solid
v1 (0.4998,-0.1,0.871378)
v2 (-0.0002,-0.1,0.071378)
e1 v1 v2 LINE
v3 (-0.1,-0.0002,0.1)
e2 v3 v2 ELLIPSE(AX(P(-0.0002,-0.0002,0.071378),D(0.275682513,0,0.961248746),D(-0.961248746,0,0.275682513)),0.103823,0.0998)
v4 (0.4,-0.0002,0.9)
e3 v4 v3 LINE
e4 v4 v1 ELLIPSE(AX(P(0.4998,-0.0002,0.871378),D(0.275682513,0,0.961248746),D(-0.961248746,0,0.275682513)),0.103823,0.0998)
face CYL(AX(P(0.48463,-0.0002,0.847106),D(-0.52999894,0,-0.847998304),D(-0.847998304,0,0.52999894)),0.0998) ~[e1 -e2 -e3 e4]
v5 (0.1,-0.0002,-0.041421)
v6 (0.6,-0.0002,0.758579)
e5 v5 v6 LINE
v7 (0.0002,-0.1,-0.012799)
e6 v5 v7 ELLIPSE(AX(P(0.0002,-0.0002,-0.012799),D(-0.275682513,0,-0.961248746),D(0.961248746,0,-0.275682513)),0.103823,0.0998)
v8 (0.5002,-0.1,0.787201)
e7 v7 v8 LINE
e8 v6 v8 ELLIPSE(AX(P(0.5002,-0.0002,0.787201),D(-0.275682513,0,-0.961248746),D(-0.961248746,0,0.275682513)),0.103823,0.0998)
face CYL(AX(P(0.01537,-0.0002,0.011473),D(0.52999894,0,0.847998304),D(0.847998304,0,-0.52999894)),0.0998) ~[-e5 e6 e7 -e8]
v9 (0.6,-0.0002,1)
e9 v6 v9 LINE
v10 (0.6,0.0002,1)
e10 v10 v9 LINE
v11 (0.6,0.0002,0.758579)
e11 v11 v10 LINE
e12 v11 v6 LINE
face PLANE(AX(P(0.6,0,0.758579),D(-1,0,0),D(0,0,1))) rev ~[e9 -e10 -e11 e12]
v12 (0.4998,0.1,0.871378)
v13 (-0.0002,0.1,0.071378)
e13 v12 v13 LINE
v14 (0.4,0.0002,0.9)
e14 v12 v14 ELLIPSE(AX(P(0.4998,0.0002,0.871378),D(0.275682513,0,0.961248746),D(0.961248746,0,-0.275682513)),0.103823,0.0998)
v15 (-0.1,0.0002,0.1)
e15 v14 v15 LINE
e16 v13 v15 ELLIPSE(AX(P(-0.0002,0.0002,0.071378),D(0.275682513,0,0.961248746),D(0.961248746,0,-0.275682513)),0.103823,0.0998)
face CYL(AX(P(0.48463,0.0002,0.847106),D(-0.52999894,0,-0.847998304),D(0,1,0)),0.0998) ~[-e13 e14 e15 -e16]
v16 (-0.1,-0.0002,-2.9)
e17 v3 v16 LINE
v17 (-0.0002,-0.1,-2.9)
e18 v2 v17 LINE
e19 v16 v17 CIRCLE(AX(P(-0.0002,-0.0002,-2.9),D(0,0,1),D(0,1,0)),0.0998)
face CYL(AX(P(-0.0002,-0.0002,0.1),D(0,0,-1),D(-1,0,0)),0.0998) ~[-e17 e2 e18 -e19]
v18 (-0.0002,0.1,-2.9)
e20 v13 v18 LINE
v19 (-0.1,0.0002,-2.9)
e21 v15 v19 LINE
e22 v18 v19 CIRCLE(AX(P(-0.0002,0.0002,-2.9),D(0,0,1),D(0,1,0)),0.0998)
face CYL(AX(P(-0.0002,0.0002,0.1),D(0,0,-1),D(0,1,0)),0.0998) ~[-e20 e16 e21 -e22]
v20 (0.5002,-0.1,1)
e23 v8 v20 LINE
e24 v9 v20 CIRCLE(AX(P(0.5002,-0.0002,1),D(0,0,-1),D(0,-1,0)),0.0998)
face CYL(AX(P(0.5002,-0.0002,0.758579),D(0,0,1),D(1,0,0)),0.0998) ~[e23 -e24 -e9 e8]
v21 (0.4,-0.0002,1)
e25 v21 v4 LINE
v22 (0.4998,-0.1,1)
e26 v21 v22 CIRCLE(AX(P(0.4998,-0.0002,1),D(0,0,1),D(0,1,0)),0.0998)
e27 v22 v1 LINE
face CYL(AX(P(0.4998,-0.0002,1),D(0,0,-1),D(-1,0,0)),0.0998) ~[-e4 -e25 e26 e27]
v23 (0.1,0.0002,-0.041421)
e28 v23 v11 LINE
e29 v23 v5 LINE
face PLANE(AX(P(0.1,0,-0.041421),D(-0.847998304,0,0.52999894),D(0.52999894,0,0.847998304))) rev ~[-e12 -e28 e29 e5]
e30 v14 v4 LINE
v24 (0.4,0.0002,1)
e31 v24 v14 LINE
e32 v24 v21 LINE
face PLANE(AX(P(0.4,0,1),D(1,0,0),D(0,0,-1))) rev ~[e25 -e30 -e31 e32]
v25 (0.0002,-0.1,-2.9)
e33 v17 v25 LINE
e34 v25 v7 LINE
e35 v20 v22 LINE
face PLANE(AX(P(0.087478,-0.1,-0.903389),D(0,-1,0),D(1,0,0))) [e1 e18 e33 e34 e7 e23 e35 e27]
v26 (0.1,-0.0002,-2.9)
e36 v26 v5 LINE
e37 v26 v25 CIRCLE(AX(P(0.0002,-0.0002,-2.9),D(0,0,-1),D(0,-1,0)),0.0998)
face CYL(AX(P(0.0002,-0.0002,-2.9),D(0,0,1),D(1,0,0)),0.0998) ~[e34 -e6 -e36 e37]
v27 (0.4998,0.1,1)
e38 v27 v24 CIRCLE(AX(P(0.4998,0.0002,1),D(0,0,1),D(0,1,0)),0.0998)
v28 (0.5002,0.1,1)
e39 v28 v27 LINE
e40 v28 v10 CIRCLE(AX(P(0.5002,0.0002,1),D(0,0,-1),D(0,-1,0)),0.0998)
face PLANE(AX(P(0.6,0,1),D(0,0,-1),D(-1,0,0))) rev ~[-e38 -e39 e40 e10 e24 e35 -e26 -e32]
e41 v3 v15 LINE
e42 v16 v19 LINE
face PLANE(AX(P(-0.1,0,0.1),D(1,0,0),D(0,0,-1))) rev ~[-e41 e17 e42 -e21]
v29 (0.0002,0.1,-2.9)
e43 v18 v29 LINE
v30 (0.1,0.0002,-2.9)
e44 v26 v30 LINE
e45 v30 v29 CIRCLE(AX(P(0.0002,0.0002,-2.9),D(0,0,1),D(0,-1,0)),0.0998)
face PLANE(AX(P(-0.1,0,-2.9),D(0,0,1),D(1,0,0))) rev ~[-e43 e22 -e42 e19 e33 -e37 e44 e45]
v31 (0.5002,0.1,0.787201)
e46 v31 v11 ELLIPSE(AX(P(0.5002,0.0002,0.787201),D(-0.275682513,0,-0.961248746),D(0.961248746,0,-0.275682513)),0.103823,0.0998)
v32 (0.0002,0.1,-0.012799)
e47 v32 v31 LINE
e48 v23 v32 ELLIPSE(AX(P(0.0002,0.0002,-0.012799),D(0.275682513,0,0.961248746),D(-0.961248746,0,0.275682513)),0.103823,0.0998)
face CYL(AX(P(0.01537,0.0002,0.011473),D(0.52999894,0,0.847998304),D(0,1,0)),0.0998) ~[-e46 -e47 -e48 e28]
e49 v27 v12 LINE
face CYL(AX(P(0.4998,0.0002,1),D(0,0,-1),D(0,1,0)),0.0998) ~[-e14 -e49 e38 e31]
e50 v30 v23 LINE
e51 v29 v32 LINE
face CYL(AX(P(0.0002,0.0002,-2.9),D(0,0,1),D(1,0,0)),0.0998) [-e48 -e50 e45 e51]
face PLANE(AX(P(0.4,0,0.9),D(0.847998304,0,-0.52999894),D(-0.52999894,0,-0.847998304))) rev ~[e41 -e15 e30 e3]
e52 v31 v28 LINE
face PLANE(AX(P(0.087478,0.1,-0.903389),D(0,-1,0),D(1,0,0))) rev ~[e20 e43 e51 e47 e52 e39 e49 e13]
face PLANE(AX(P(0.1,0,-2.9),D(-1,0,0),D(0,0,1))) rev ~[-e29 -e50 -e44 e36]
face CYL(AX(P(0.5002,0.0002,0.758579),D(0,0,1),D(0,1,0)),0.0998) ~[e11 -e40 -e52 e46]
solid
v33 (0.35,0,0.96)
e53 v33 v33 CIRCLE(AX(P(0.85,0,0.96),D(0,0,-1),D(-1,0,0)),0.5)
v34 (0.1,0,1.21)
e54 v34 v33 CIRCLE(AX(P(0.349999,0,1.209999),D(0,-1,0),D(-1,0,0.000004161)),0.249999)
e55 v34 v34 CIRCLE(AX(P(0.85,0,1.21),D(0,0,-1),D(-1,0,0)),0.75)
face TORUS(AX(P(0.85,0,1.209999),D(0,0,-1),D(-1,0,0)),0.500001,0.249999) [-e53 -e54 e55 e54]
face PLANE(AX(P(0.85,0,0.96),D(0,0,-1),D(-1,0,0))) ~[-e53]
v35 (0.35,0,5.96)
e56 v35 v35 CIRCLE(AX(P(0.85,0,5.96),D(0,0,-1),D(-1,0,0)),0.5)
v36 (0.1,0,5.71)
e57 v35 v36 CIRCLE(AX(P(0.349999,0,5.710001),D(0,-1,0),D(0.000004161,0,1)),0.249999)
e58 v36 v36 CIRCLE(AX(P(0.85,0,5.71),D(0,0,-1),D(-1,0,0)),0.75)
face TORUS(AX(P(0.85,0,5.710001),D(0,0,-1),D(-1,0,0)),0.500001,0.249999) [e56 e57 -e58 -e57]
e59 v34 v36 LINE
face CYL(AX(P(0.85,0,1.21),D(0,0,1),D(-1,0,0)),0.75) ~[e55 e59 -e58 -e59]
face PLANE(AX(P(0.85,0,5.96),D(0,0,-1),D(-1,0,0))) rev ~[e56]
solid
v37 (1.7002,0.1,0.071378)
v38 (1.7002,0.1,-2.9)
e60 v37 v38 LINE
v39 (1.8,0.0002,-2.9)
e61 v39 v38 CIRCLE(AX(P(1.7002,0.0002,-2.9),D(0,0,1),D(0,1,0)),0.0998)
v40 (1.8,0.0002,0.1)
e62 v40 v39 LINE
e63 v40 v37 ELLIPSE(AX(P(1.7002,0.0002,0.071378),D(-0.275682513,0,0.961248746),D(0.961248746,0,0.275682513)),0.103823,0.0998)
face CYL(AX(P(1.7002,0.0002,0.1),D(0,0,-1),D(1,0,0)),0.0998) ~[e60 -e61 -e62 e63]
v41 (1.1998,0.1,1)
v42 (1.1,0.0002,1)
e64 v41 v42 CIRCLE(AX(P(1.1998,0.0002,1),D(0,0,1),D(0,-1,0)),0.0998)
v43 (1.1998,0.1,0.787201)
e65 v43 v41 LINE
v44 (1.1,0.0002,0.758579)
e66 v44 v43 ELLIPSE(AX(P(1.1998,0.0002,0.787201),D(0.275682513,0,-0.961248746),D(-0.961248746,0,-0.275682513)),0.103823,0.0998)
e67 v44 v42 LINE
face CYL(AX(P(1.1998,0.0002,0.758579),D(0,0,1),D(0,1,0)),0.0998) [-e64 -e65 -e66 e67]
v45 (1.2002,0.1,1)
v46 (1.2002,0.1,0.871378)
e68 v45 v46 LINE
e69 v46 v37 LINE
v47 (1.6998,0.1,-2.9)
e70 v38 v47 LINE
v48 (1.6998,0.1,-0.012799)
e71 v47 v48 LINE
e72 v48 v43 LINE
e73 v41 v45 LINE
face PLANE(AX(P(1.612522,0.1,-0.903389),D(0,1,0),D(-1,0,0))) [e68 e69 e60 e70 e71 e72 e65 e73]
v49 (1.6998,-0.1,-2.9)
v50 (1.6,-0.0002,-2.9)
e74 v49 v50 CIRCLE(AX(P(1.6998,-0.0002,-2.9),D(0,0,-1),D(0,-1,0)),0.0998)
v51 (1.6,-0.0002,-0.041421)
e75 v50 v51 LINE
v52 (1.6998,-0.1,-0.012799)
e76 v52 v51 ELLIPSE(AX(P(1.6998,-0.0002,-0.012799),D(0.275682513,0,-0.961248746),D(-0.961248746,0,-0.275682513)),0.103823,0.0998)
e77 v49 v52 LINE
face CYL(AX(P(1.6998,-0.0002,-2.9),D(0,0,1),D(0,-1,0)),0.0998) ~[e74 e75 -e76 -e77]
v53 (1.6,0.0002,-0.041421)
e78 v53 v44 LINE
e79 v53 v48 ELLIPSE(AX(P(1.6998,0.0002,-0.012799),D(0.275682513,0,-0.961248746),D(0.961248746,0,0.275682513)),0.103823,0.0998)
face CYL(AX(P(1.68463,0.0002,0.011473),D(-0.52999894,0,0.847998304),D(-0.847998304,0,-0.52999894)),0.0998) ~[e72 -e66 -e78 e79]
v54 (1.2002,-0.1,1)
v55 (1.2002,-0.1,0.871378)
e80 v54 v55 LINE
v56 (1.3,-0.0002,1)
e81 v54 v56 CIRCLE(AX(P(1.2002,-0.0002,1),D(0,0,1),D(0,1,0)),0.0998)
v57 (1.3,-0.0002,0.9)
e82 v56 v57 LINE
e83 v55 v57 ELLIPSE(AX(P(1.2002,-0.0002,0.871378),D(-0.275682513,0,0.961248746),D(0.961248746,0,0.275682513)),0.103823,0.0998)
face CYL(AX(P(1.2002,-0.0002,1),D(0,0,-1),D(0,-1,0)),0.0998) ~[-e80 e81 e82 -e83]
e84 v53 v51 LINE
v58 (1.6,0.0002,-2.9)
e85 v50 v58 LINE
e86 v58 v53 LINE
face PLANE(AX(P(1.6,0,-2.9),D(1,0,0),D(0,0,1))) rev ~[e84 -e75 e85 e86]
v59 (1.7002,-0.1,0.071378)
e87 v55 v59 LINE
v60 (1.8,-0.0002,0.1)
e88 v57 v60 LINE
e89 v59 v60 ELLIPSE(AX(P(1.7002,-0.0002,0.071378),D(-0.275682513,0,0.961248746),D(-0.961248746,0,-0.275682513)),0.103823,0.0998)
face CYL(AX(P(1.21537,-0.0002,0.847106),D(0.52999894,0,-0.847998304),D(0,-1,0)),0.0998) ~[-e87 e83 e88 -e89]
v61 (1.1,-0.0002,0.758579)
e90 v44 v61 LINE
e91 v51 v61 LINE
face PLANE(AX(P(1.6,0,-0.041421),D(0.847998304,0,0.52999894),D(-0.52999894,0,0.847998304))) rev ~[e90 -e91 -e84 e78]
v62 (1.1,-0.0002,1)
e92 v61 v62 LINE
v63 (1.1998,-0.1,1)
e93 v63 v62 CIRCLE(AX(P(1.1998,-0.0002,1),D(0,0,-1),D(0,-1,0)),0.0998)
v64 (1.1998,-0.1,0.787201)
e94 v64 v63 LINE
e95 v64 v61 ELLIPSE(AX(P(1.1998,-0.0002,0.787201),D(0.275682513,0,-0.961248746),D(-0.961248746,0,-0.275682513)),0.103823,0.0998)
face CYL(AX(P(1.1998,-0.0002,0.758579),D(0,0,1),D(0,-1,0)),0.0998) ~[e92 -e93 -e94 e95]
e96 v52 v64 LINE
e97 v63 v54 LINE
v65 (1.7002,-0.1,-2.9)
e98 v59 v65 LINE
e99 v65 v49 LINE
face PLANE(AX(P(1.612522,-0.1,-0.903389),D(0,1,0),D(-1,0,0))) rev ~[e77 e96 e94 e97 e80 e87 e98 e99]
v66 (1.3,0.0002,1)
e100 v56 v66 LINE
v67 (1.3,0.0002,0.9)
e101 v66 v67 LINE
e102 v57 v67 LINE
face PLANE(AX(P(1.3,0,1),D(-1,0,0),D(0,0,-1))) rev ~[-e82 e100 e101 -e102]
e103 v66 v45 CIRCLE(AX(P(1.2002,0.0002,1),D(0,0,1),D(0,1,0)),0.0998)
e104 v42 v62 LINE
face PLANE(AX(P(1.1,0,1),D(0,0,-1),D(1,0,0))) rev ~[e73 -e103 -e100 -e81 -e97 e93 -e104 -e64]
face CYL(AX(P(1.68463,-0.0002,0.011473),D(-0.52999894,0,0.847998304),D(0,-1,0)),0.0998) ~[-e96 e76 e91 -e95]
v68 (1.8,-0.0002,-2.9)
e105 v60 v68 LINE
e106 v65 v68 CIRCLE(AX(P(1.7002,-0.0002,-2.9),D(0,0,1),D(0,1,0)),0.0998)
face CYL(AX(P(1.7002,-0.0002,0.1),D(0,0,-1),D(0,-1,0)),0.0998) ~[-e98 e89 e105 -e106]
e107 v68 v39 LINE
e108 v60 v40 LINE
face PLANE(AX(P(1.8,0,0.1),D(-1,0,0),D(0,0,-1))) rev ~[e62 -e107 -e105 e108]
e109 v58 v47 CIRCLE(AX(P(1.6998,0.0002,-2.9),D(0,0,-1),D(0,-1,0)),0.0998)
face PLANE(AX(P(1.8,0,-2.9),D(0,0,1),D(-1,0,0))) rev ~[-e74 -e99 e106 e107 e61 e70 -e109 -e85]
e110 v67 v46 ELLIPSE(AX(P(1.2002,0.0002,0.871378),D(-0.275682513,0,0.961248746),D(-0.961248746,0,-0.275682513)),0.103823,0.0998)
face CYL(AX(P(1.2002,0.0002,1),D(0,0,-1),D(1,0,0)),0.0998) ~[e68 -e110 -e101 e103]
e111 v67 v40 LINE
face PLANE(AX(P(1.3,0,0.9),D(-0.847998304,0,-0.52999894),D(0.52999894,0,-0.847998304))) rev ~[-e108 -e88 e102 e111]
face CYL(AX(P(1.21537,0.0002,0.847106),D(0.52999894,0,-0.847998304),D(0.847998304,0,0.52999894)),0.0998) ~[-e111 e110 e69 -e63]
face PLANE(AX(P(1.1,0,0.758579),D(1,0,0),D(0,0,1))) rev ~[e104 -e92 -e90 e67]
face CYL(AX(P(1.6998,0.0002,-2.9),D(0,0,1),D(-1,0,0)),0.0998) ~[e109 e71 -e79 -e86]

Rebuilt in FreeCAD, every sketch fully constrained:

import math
import FreeCAD as App
import Part
import Sketcher

V = App.Vector


def edges_at(feature, points):
    """Names of the edges that pass closest to the given points."""
    edges = feature.Shape.Edges
    near = lambda p: min(range(len(edges)), key=lambda i: edges[i].distToShape(Part.Vertex(*p))[0])
    return sorted({f"Edge{near(p) + 1}" for p in points})


def add_polygon(sketch, points):
    """Adds a closed chain of lines whose ends are joined by coincident constraints."""
    first, n = sketch.GeometryCount, len(points)
    for a, b in zip(points, points[1:] + points[:1]):
        sketch.addGeometry(Part.LineSegment(App.Vector(*a, 0), App.Vector(*b, 0)), False)
    for i in range(n):
        sketch.addConstraint(Sketcher.Constraint("Coincident", first + i, 2, first + (i + 1) % n, 1))

doc = App.newDocument("Part")
body = doc.addObject("PartDesign::Body", "Body")

sketch1 = body.newObject("Sketcher::SketchObject", "Sketch")
sketch1.AttachmentSupport = (doc.getObject("XZ_Plane"), [""])
sketch1.MapMode = "FlatFace"
sketch1.addGeometry(Part.LineSegment(V(0.85, 5.96, 0), V(0.35, 5.96, 0)), False)
sketch1.addGeometry(Part.ArcOfCircle(Part.Circle(V(0.35, 5.71, 0), V(0, 0, 1), 0.25), math.radians(90), math.radians(180)), False)
sketch1.addGeometry(Part.LineSegment(V(0.1, 5.71, 0), V(0.1, 1.21, 0)), False)
sketch1.addGeometry(Part.ArcOfCircle(Part.Circle(V(0.35, 1.21, 0), V(0, 0, 1), 0.25), math.radians(180), math.radians(270)), False)
sketch1.addGeometry(Part.LineSegment(V(0.35, 0.96, 0), V(0.85, 0.96, 0)), False)
sketch1.addGeometry(Part.LineSegment(V(0.85, 0.96, 0), V(0.85, 5.96, 0)), False)
sketch1.addGeometry(Part.LineSegment(V(0.85, 5.96, 0), V(0.85, 0.96, 0)), True)
sketch1.addConstraint(Sketcher.Constraint("Coincident", 0, 2, 1, 1))
sketch1.addConstraint(Sketcher.Constraint("Coincident", 1, 2, 2, 1))
sketch1.addConstraint(Sketcher.Constraint("Coincident", 2, 2, 3, 1))
sketch1.addConstraint(Sketcher.Constraint("Coincident", 3, 2, 4, 1))
sketch1.addConstraint(Sketcher.Constraint("Coincident", 4, 2, 5, 1))
sketch1.addConstraint(Sketcher.Constraint("Coincident", 5, 2, 0, 1))
sketch1.addConstraint(Sketcher.Constraint("Horizontal", 0))
sketch1.addConstraint(Sketcher.Constraint("Vertical", 2))
sketch1.addConstraint(Sketcher.Constraint("Horizontal", 4))
sketch1.addConstraint(Sketcher.Constraint("Vertical", 5))
sketch1.addConstraint(Sketcher.Constraint("Vertical", 6))
sketch1.addConstraint(Sketcher.Constraint("Coincident", 6, 1, 5, 2))
sketch1.addConstraint(Sketcher.Constraint("Equal", 1, 3))
sketch1.addConstraint(Sketcher.Constraint("Horizontal", 3, 3, 2, 2))
sketch1.addConstraint(Sketcher.Constraint("Horizontal", 3, 2, 6, 2))
sketch1.addConstraint(Sketcher.Constraint("Vertical", 3, 3, 0, 2))
sketch1.addConstraint(Sketcher.Constraint("Vertical", 0, 2, 3, 2))
sketch1.addConstraint(Sketcher.Constraint("DistanceY", 5, 1, 5, 2, 5.0))
sketch1.addConstraint(Sketcher.Constraint("Radius", 1, 0.249999))
sketch1.addConstraint(Sketcher.Constraint("DistanceX", 0, 2, 0, 1, 0.5))
sketch1.addConstraint(Sketcher.Constraint("DistanceY", 2, 2, 2, 1, 4.5))
sketch1.addConstraint(Sketcher.Constraint("DistanceX", -1, 1, 1, 2, 0.1))
sketch1.addConstraint(Sketcher.Constraint("DistanceY", -1, 1, 1, 3, 5.710001))
revolution = body.newObject("PartDesign::Revolution", "Revolution")
revolution.Profile = sketch1
revolution.ReferenceAxis = (sketch1, ["Axis0"])
revolution.Angle = 360
body2 = doc.addObject("PartDesign::Body", "Body001")
body2.AllowCompound = True

sketch2 = body2.newObject("Sketcher::SketchObject", "Sketch001")
sketch2.AttachmentSupport = (doc.getObject("XZ_Plane001"), [""])
sketch2.MapMode = "FlatFace"
add_polygon(sketch2, [(0.1, -2.9), (0.1, -0.04), (0.6, 0.76), (0.6, 1), (0.4, 1), (0.4, 0.9), (-0.1, 0.1), (-0.1, -2.9)])
add_polygon(sketch2, [(1.3, 1), (1.1, 1), (1.1, 0.76), (1.6, -0.04), (1.6, -2.9), (1.8, -2.9), (1.8, 0.1), (1.3, 0.9)])
sketch2.addConstraint(Sketcher.Constraint("Vertical", 0))
sketch2.addConstraint(Sketcher.Constraint("Vertical", 2))
sketch2.addConstraint(Sketcher.Constraint("Horizontal", 3))
sketch2.addConstraint(Sketcher.Constraint("Vertical", 4))
sketch2.addConstraint(Sketcher.Constraint("Vertical", 6))
sketch2.addConstraint(Sketcher.Constraint("Horizontal", 7))
sketch2.addConstraint(Sketcher.Constraint("Horizontal", 8))
sketch2.addConstraint(Sketcher.Constraint("Vertical", 9))
sketch2.addConstraint(Sketcher.Constraint("Vertical", 11))
sketch2.addConstraint(Sketcher.Constraint("Horizontal", 12))
sketch2.addConstraint(Sketcher.Constraint("Vertical", 13))
sketch2.addConstraint(Sketcher.Constraint("Vertical", 15))
sketch2.addConstraint(Sketcher.Constraint("Parallel", 1, 5))
sketch2.addConstraint(Sketcher.Constraint("Parallel", 10, 14))
sketch2.addConstraint(Sketcher.Constraint("Horizontal", 3, 2, 8, 2))
sketch2.addConstraint(Sketcher.Constraint("Horizontal", 1, 2, 9, 2))
sketch2.addConstraint(Sketcher.Constraint("Horizontal", 0, 2, 10, 2))
sketch2.addConstraint(Sketcher.Constraint("Horizontal", 7, 2, 11, 2))
sketch2.addConstraint(Sketcher.Constraint("Horizontal", 5, 2, 13, 2))
sketch2.addConstraint(Sketcher.Constraint("Horizontal", 4, 2, 14, 2))
sketch2.addConstraint(Sketcher.Constraint("Equal", 3, 7))
sketch2.addConstraint(Sketcher.Constraint("Equal", 7, 8))
sketch2.addConstraint(Sketcher.Constraint("Equal", 5, 10))
sketch2.addConstraint(Sketcher.Constraint("DistanceY", 6, 2, 6, 1, 3.0))
sketch2.addConstraint(Sketcher.Constraint("DistanceX", 3, 2, 3, 1, 0.2))
sketch2.addConstraint(Sketcher.Constraint("DistanceY", 4, 2, 4, 1, 0.1))
sketch2.addConstraint(Sketcher.Constraint("DistanceY", -1, 1, 2, 2, 1.0))
sketch2.addConstraint(Sketcher.Constraint("DistanceX", 0, 2, 8, 2, 1.0))
sketch2.addConstraint(Sketcher.Constraint("DistanceX", -1, 1, 0, 2, 0.1))
sketch2.addConstraint(Sketcher.Constraint("DistanceX", -1, 1, 1, 2, 0.6))
sketch2.addConstraint(Sketcher.Constraint("DistanceY", -1, 1, 5, 2, 0.1))
sketch2.addConstraint(Sketcher.Constraint("DistanceY", 0, 1, 0, 2, 2.858579))
pad1 = body2.newObject("PartDesign::Pad", "Pad")
pad1.Profile = sketch2
pad1.Length = 0.2
pad1.Midplane = True
doc.recompute()

fillet = body2.newObject("PartDesign::Fillet", "Fillet")
fillet.Base = (pad1, edges_at(pad1, [
    (0.15, -0.1, 0.5),
    (0.4, -0.1, 0.95),
    (0.6, -0.1, 0.879),
    (0.35, -0.1, 0.359),
    (0.1, -0.1, -1.471),
    (-0.1, -0.1, -1.4),
    (0.1, 0.1, -1.471),
    (0.35, 0.1, 0.359),
    (0.6, 0.1, 0.879),
    (1.35, -0.1, 0.359),
    (1.1, -0.1, 0.879),
    (1.6, -0.1, -1.471),
    (1.8, -0.1, -1.4),
    (1.55, -0.1, 0.5),
    (1.3, -0.1, 0.95),
    (1.3, 0.1, 0.95),
    (1.55, 0.1, 0.5),
    (1.8, 0.1, -1.4),
    (1.6, 0.1, -1.471),
    (1.35, 0.1, 0.359),
    (1.1, 0.1, 0.879),
    (0.4, 0.1, 0.95),
    (-0.1, 0.1, -1.4),
    (0.15, 0.1, 0.5),
]))
fillet.Radius = 0.0998

doc.recompute()
